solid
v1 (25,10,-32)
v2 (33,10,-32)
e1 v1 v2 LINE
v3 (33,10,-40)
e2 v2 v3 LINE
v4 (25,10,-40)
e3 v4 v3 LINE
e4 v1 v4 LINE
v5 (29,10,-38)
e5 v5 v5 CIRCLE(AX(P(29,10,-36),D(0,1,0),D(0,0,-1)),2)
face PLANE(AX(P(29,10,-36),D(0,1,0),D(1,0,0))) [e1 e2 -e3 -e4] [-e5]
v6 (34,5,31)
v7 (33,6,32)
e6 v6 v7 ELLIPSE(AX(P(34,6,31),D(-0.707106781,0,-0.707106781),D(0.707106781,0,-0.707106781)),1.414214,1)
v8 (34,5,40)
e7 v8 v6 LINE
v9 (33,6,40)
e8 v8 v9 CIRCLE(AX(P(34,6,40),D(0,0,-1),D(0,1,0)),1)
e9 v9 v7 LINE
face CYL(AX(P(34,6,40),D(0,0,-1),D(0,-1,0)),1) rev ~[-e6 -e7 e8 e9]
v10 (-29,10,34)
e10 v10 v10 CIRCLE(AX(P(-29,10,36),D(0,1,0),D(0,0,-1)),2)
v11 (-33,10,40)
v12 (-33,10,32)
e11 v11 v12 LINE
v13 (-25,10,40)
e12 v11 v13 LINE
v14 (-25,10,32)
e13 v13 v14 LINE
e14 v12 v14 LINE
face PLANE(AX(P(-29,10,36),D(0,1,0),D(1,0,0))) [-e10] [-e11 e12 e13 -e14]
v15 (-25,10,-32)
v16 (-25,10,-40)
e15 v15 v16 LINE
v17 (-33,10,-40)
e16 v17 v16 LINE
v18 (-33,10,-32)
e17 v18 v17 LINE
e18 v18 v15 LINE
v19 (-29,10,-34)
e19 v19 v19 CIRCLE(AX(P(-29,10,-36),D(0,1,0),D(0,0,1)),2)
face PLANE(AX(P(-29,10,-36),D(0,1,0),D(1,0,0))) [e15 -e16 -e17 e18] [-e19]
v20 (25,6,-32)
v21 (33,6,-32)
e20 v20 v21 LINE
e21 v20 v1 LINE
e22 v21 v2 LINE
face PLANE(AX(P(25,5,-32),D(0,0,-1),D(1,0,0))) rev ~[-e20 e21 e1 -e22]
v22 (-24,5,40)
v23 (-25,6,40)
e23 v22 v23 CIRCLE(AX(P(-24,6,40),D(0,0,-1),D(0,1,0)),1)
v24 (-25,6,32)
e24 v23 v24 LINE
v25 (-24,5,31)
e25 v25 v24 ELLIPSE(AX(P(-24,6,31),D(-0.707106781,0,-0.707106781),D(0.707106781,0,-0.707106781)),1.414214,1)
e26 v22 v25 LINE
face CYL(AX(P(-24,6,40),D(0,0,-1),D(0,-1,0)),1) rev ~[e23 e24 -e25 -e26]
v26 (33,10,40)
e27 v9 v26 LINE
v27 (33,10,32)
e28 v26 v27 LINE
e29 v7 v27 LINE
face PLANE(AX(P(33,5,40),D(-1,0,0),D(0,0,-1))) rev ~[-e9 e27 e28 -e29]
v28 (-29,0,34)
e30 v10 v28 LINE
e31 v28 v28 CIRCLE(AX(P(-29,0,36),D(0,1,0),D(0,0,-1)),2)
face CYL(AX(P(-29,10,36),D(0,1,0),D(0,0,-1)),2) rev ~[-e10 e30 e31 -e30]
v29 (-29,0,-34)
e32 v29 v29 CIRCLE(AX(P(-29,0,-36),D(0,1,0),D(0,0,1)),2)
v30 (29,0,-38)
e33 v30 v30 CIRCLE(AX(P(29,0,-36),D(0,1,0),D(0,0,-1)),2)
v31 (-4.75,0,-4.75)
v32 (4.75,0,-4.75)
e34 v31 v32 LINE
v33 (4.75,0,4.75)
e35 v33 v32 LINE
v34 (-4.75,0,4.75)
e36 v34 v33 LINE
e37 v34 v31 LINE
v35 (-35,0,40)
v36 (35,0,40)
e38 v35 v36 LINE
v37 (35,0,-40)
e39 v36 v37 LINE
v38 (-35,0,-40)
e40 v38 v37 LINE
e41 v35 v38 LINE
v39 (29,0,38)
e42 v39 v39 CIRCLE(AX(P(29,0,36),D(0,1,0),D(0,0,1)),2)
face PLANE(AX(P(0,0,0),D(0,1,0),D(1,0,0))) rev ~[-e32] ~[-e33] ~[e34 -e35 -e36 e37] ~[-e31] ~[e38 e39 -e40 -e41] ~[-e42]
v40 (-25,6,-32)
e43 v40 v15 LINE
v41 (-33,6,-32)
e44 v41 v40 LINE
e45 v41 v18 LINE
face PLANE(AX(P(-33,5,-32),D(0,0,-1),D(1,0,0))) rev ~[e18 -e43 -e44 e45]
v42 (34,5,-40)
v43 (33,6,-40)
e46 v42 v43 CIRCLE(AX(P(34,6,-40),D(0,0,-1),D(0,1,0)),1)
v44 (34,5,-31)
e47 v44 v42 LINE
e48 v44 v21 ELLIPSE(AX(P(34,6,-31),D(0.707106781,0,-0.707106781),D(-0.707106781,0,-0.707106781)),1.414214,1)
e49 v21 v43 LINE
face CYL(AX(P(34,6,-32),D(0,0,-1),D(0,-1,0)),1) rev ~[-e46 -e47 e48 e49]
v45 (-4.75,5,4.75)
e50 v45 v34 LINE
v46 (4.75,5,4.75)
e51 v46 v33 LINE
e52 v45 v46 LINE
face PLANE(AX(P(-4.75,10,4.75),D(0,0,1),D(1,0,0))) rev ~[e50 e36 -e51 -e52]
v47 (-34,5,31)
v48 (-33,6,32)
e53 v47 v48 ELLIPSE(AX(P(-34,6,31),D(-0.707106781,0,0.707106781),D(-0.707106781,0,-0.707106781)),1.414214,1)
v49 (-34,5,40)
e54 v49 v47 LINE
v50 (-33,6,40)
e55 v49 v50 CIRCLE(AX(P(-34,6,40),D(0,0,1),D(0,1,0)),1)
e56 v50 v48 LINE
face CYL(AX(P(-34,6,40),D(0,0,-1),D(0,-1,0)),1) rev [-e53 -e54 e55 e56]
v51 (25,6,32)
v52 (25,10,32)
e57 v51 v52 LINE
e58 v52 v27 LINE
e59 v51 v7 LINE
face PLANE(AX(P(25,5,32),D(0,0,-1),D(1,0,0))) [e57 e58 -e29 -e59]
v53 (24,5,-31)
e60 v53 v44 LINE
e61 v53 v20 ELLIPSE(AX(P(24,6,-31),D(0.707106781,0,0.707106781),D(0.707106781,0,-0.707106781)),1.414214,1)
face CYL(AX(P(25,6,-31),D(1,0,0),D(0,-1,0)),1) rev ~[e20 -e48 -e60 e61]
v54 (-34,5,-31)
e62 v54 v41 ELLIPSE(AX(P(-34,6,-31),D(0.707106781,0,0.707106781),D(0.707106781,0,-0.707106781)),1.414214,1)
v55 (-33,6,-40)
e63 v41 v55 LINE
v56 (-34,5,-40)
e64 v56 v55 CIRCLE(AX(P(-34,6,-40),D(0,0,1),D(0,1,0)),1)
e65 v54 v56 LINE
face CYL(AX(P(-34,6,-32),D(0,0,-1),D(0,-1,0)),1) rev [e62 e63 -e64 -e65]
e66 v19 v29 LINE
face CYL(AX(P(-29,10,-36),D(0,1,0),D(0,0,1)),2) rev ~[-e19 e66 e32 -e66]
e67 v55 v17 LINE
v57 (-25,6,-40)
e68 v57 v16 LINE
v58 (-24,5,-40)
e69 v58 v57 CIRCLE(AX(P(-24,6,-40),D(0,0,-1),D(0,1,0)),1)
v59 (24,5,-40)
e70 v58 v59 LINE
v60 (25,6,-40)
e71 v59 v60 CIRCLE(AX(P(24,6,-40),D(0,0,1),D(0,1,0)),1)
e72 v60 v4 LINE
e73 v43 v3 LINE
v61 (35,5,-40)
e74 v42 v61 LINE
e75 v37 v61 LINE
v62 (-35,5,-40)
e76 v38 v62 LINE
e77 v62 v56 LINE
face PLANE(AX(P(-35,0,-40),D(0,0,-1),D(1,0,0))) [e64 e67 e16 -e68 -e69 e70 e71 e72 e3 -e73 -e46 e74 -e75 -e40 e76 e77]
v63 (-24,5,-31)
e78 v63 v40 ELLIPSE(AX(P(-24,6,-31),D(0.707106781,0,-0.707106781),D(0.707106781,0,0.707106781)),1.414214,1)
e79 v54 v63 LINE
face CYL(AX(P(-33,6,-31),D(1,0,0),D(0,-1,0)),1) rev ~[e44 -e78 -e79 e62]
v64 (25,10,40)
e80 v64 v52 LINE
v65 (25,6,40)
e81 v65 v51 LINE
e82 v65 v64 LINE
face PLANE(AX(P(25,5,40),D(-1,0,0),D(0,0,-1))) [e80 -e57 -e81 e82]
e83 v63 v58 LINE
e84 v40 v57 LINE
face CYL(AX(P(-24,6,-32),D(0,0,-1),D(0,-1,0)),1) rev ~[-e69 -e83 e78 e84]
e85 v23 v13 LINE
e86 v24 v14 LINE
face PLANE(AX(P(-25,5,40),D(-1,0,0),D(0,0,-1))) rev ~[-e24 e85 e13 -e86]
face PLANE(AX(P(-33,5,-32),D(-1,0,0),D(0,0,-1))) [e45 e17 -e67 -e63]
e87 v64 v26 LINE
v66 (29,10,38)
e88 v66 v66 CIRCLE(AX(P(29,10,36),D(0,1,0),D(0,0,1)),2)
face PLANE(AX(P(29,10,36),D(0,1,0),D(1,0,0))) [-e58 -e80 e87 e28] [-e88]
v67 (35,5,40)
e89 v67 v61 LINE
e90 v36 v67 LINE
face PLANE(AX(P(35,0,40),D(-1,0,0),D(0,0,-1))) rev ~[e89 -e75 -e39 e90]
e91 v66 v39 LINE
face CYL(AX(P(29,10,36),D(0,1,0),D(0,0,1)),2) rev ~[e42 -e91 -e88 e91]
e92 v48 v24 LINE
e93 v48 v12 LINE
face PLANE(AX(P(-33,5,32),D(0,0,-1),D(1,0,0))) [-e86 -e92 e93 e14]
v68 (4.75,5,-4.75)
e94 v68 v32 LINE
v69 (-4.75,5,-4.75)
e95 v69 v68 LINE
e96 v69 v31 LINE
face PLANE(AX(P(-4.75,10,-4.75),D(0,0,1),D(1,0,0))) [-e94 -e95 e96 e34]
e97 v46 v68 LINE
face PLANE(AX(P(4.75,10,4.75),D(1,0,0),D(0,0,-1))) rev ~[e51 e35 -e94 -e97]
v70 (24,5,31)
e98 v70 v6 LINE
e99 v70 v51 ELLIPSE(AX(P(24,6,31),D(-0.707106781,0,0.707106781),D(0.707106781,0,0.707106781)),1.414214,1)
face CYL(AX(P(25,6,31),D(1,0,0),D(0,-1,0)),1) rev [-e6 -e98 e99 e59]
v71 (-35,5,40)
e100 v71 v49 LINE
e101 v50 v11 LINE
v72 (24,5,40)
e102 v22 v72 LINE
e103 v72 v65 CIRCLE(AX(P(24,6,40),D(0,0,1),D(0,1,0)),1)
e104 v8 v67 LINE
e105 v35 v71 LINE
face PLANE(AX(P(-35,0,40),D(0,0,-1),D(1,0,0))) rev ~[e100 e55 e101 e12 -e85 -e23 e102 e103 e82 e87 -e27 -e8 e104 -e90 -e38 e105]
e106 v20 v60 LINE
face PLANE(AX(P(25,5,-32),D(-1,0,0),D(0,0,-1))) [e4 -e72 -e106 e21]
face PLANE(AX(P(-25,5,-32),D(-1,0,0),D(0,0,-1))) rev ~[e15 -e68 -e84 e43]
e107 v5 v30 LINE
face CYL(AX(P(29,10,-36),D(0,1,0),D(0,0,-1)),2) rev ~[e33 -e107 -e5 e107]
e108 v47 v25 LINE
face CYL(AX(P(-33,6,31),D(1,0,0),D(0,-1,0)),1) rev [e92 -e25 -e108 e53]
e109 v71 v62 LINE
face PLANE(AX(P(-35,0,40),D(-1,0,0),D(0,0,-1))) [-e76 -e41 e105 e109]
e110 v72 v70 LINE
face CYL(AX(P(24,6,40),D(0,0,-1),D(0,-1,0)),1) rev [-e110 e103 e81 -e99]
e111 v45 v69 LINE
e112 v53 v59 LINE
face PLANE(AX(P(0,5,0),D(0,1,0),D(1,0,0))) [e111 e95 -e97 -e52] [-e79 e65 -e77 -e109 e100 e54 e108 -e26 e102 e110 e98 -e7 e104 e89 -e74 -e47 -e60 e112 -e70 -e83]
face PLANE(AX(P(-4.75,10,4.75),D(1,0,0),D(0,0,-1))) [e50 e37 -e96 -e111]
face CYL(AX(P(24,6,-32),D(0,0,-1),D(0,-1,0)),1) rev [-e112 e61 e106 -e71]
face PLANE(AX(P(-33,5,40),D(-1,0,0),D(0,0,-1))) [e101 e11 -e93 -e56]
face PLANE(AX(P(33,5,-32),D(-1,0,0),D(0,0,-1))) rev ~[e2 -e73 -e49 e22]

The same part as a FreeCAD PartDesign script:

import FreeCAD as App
import Part
import Sketcher


def edges_at(feature, points):
    """Names of the edges that pass closest to the given points."""
    edges = feature.Shape.Edges
    near = lambda p: min(range(len(edges)), key=lambda i: edges[i].distToShape(Part.Vertex(*p))[0])
    return sorted({f"Edge{near(p) + 1}" for p in points})


def add_polygon(sketch, points):
    """Adds a closed chain of lines whose ends are joined by coincident constraints."""
    first, n = sketch.GeometryCount, len(points)
    for a, b in zip(points, points[1:] + points[:1]):
        sketch.addGeometry(Part.LineSegment(App.Vector(*a, 0), App.Vector(*b, 0)), False)
    for i in range(n):
        sketch.addConstraint(Sketcher.Constraint("Coincident", first + i, 2, first + (i + 1) % n, 1))

doc = App.newDocument("Part")
body = doc.addObject("PartDesign::Body", "Body")

# Sketch on XZ plane
sketch1 = body.newObject("Sketcher::SketchObject", "Sketch")
sketch1.AttachmentSupport = (doc.getObject("XZ_Plane"), [""])
sketch1.MapMode = "FlatFace"
add_polygon(sketch1, [(-35, -40), (-35, 40), (35, 40), (35, -40)])  # lines 0-3
sketch1.addConstraint([
    Sketcher.Constraint("Vertical", 0),
    Sketcher.Constraint("Horizontal", 1),
    Sketcher.Constraint("Vertical", 2),
    Sketcher.Constraint("Horizontal", 3),
    Sketcher.Constraint("Symmetric", 0, 2, 2, 2, -1, 1),
    Sketcher.Constraint("DistanceX", 1, 1, 1, 2, 70.0),
    Sketcher.Constraint("DistanceY", 0, 1, 0, 2, 80.0),
])
pad1 = body.newObject("PartDesign::Pad", "Pad")
pad1.Profile = sketch1
pad1.Length = 5
pad1.Reversed = True

# Sketch on XZ plane
sketch2 = body.newObject("Sketcher::SketchObject", "Sketch001")
sketch2.AttachmentSupport = (doc.getObject("XZ_Plane"), [""])
sketch2.MapMode = "FlatFace"
sketch2.AttachmentOffset = App.Placement(App.Vector(0, 0, -5), App.Rotation())
add_polygon(sketch2, [(-33, 32), (-33, 40), (-25, 40), (-25, 32)])  # lines 0-3
add_polygon(sketch2, [(-33, -40), (-33, -32), (-25, -32), (-25, -40)])  # lines 4-7
add_polygon(sketch2, [(25, 32), (25, 40), (33, 40), (33, 32)])  # lines 8-11
add_polygon(sketch2, [(25, -40), (25, -32), (33, -32), (33, -40)])  # lines 12-15
sketch2.addConstraint([
    Sketcher.Constraint("Vertical", 0),
    Sketcher.Constraint("Horizontal", 1),
    Sketcher.Constraint("Vertical", 2),
    Sketcher.Constraint("Horizontal", 3),
    Sketcher.Constraint("Vertical", 4),
    Sketcher.Constraint("Horizontal", 5),
    Sketcher.Constraint("Vertical", 6),
    Sketcher.Constraint("Horizontal", 7),
    Sketcher.Constraint("Vertical", 8),
    Sketcher.Constraint("Horizontal", 9),
    Sketcher.Constraint("Vertical", 10),
    Sketcher.Constraint("Horizontal", 11),
    Sketcher.Constraint("Vertical", 12),
    Sketcher.Constraint("Horizontal", 13),
    Sketcher.Constraint("Vertical", 14),
    Sketcher.Constraint("Horizontal", 15),
    Sketcher.Constraint("Symmetric", 6, 2, 8, 2, -1, 1),
    Sketcher.Constraint("Symmetric", 4, 2, 10, 2, -1, 1),
    Sketcher.Constraint("Symmetric", 2, 2, 12, 2, -1, 1),
    Sketcher.Constraint("Symmetric", 0, 2, 14, 2, -1, 1),
    Sketcher.Constraint("Symmetric", 1, 2, 8, 2, -2),
    Sketcher.Constraint("Symmetric", 3, 2, 10, 2, -2),
    Sketcher.Constraint("Equal", 15, 0),
    Sketcher.Constraint("DistanceX", 1, 1, 1, 2, 8.0),
    Sketcher.Constraint("DistanceX", 0, 2, -1, 1, 33.0),
    Sketcher.Constraint("DistanceY", -1, 1, 0, 2, 40.0),
])
pad2 = body.newObject("PartDesign::Pad", "Pad001")
pad2.Profile = sketch2
pad2.Length = 5
pad2.Reversed = True

# Sketch on XZ plane
sketch3 = body.newObject("Sketcher::SketchObject", "Sketch002")
sketch3.AttachmentSupport = (doc.getObject("XZ_Plane"), [""])
sketch3.MapMode = "FlatFace"
sketch3.AttachmentOffset = App.Placement(App.Vector(0, 0, -10), App.Rotation())
sketch3.addGeometry(Part.Circle(App.Vector(-29, -36, 0), App.Vector(0, 0, 1), 2), False)  # 0
sketch3.addGeometry(Part.Circle(App.Vector(-29, 36, 0), App.Vector(0, 0, 1), 2), False)  # 1
sketch3.addGeometry(Part.Circle(App.Vector(29, 36, 0), App.Vector(0, 0, 1), 2), False)  # 2
sketch3.addGeometry(Part.Circle(App.Vector(29, -36, 0), App.Vector(0, 0, 1), 2), False)  # 3
add_polygon(sketch3, [(-4.75, -4.75), (-4.75, 4.75), (4.75, 4.75), (4.75, -4.75)])  # lines 4-7
sketch3.addConstraint([
    Sketcher.Constraint("Vertical", 4),
    Sketcher.Constraint("Horizontal", 5),
    Sketcher.Constraint("Vertical", 6),
    Sketcher.Constraint("Horizontal", 7),
    Sketcher.Constraint("Equal", 0, 1),
    Sketcher.Constraint("Equal", 1, 2),
    Sketcher.Constraint("Equal", 2, 3),
    Sketcher.Constraint("Symmetric", 0, 3, 2, 3, -1, 1),
    Sketcher.Constraint("Symmetric", 1, 3, 3, 3, -1, 1),
    Sketcher.Constraint("Symmetric", 4, 2, 6, 2, -1, 1),
    Sketcher.Constraint("Symmetric", 1, 3, 2, 3, -2),
    Sketcher.Constraint("Equal", 7, 4),
    Sketcher.Constraint("Diameter", 0, 4.0),
    Sketcher.Constraint("DistanceX", 5, 1, 5, 2, 9.5),
    Sketcher.Constraint("DistanceX", 0, 3, -1, 1, 29.0),
    Sketcher.Constraint("DistanceY", 0, 3, -1, 1, 36.0),
])
pocket1 = body.newObject("PartDesign::Pocket", "Pocket")
pocket1.Profile = sketch3
pocket1.Length = 10
pocket1.Reversed = True
doc.recompute()

fillet = body.newObject("PartDesign::Fillet", "Fillet")
fillet.Base = (pocket1, edges_at(pocket1, [
    (-33, 5, 36),
    (-25, 5, 36),
    (-29, 5, 32),
    (-33, 5, -36),
    (-29, 5, -32),
    (-25, 5, -36),
    (33, 5, 36),
    (29, 5, 32),
    (25, 5, 36),
    (33, 5, -36),
    (25, 5, -36),
    (29, 5, -32),
]))
fillet.Radius = 1

doc.recompute()
